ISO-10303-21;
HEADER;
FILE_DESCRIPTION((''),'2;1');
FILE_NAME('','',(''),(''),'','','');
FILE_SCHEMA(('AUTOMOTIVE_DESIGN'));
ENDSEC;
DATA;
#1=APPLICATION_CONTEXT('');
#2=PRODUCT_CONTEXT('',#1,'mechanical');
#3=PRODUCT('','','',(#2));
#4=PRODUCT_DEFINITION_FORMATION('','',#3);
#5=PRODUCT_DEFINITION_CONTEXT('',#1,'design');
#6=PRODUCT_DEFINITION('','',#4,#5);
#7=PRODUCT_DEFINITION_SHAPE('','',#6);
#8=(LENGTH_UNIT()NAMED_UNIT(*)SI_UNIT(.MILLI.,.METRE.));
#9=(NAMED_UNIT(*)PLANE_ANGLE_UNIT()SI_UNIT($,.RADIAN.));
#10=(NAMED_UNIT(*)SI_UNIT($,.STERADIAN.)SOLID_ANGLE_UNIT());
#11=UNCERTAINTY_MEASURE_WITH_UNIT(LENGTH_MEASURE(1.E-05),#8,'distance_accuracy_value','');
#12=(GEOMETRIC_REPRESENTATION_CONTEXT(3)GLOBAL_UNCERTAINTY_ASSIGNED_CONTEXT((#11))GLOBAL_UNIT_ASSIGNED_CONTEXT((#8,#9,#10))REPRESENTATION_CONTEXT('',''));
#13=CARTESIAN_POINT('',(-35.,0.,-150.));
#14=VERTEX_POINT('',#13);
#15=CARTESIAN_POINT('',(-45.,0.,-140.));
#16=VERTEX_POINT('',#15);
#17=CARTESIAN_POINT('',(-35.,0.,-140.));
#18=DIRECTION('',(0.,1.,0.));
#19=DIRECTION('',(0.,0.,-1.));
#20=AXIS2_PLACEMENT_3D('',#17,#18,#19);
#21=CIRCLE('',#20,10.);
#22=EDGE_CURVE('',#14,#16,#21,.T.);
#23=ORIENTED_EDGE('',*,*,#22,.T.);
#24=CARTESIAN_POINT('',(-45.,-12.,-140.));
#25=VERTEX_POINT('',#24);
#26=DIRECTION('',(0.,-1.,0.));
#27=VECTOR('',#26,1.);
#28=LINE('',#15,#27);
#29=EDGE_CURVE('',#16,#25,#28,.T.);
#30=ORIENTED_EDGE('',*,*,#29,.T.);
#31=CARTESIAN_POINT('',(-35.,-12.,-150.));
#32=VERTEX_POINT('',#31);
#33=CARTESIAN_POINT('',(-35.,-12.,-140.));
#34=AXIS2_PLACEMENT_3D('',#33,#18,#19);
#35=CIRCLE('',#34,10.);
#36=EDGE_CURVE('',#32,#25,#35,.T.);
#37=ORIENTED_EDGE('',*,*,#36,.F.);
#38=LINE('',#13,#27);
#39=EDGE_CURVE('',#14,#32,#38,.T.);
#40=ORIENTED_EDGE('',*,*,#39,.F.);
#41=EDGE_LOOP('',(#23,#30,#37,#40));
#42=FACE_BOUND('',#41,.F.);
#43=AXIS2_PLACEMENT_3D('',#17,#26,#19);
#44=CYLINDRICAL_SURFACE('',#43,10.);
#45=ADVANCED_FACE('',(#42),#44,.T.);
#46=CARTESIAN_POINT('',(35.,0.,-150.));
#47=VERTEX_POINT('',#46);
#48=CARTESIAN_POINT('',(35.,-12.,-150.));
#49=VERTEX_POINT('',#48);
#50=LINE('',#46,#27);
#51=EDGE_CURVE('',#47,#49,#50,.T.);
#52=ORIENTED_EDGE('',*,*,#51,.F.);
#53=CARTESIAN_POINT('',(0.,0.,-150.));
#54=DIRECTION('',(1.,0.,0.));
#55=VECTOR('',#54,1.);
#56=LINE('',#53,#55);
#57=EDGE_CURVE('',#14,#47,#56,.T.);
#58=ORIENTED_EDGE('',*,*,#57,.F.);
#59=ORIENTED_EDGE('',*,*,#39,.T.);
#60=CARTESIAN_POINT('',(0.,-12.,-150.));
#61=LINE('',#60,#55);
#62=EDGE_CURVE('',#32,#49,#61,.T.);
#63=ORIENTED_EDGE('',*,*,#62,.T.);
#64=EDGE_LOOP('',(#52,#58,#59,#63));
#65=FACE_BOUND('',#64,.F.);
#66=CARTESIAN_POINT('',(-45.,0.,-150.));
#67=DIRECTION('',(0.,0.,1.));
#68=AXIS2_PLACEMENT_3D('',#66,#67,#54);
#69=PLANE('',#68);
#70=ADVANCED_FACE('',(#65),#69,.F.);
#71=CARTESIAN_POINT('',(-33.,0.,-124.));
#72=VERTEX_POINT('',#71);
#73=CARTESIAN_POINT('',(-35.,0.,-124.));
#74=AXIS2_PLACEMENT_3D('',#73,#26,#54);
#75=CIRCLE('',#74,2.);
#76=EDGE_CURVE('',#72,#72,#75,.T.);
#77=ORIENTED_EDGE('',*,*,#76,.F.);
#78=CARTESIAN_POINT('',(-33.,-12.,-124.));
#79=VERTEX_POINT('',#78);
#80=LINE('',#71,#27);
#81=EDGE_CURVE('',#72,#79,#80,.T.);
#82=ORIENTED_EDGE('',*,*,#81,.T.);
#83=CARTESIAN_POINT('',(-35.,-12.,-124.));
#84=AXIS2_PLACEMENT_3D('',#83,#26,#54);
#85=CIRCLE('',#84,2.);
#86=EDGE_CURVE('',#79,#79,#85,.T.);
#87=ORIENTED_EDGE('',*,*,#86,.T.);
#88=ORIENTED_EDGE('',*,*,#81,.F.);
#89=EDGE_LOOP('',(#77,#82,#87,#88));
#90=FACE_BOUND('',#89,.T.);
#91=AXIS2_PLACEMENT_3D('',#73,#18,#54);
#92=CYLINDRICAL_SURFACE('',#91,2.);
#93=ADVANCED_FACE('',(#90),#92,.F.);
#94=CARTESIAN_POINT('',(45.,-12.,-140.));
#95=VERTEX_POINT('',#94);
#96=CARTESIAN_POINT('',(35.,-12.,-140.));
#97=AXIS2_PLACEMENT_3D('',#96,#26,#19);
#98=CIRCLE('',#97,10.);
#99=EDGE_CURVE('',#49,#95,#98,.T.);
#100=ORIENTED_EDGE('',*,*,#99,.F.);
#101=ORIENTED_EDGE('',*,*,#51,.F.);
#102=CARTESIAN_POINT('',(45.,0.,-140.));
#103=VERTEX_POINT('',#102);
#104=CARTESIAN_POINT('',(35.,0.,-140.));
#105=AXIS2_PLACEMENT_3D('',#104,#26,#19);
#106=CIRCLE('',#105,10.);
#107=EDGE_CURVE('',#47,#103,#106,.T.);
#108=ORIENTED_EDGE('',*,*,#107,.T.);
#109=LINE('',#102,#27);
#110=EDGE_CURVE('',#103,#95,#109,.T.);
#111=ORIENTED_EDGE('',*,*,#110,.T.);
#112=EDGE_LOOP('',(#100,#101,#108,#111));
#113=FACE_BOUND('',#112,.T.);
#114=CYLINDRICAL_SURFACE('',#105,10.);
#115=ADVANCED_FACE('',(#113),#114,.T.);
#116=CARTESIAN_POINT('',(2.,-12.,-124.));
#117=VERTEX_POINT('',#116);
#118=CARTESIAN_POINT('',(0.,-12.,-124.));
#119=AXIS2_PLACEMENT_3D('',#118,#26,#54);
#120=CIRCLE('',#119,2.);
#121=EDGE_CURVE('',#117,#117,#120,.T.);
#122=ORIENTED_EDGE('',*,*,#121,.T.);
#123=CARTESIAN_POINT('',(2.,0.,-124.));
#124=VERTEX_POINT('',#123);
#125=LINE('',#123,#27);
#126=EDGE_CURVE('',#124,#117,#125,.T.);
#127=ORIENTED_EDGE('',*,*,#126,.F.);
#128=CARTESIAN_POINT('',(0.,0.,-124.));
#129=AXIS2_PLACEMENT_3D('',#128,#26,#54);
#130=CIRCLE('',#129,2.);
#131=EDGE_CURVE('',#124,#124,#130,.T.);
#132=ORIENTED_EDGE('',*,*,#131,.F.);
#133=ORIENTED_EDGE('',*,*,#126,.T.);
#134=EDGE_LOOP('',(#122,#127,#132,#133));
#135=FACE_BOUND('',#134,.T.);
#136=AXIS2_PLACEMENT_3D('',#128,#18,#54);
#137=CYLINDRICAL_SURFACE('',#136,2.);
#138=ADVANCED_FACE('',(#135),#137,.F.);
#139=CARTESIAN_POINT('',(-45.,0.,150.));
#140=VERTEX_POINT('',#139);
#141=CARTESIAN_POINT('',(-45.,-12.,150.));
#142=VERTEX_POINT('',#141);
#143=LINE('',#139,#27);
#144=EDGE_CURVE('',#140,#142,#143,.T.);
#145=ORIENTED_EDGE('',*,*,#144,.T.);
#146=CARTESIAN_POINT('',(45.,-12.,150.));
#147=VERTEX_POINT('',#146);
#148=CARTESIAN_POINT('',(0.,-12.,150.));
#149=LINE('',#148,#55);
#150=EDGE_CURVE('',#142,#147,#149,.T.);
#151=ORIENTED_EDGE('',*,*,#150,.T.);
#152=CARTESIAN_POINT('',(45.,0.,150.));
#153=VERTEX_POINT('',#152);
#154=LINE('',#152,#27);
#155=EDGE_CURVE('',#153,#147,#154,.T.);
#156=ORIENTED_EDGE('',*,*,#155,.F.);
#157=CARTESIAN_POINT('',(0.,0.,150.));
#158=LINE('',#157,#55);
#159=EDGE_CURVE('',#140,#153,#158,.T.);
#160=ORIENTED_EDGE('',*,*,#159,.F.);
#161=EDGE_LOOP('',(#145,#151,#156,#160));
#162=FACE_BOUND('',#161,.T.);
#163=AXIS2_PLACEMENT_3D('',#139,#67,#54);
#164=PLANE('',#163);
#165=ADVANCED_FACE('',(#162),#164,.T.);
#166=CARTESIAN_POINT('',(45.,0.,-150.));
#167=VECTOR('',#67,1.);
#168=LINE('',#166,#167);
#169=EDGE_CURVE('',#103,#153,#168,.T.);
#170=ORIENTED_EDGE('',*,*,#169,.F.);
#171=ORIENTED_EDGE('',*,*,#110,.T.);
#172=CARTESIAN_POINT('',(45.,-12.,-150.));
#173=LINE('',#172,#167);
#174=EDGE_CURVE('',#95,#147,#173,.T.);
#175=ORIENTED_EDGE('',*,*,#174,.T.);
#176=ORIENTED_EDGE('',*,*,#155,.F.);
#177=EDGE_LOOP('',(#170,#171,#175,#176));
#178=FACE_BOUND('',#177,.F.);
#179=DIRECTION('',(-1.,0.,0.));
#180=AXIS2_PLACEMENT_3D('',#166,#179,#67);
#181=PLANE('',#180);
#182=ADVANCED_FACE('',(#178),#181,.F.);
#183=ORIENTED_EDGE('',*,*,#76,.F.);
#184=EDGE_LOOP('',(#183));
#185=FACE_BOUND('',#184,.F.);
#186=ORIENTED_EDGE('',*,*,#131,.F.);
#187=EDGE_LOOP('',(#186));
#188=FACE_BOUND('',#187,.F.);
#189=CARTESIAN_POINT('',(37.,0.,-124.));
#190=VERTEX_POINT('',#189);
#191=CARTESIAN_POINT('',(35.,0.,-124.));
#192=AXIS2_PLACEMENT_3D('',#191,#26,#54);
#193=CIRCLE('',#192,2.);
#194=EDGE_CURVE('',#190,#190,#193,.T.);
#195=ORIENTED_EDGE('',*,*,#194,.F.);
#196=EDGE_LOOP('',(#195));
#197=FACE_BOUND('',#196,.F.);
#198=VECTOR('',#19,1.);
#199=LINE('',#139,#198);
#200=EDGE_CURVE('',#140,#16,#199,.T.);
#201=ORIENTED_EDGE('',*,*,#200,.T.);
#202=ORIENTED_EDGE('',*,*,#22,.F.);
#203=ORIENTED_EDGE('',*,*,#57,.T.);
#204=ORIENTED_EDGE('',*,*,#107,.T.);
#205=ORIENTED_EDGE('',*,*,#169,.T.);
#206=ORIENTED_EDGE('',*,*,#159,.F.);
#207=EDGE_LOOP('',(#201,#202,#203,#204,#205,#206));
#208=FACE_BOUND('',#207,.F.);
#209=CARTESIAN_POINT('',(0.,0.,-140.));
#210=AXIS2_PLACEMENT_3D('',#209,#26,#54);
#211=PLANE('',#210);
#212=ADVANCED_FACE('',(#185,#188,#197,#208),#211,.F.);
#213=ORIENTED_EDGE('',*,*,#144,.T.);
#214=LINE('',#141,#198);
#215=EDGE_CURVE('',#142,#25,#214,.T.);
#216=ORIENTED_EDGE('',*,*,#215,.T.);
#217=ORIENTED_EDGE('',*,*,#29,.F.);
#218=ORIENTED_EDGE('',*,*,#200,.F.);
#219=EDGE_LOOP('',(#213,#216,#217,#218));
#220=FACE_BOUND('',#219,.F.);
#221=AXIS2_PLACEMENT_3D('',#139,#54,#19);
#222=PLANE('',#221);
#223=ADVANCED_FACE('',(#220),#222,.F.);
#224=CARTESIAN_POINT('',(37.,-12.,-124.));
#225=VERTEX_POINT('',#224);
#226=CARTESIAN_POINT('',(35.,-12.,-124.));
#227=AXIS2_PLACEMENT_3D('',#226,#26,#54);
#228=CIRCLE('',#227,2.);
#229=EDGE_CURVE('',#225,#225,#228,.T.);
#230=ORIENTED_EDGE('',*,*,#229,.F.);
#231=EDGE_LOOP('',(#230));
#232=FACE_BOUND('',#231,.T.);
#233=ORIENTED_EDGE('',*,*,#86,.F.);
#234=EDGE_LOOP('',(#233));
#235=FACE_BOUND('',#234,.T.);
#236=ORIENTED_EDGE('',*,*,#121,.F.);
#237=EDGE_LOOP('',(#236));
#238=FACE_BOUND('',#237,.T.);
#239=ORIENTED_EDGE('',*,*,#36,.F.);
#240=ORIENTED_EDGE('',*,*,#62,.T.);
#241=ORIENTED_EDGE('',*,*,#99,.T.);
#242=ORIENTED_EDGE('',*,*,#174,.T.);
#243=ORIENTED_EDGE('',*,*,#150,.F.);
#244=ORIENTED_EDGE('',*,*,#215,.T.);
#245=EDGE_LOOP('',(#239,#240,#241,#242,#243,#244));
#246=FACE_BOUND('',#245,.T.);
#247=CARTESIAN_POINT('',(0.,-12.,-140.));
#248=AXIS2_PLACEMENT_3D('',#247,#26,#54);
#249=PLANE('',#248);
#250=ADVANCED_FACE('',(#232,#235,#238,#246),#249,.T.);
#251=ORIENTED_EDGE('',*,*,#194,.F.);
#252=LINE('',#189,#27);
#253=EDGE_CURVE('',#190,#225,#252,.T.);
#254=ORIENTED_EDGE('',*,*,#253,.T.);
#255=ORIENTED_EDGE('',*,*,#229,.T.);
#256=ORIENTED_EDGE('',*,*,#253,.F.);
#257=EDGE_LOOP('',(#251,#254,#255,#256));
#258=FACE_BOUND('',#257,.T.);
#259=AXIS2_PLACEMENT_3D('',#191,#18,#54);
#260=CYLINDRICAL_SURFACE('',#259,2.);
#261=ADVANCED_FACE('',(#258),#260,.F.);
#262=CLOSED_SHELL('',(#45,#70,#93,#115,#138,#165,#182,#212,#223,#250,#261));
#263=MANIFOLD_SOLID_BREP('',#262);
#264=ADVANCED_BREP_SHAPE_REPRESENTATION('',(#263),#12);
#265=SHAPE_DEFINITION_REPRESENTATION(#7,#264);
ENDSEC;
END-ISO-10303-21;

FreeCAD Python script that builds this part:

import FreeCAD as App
import Part
import Sketcher
Q = App.Units.Quantity


def edges_at(feature, points):
    """Names of the edges that pass closest to the given points."""
    edges = feature.Shape.Edges
    near = lambda p: min(range(len(edges)), key=lambda i: edges[i].distToShape(Part.Vertex(*p))[0])
    return sorted({f"Edge{near(p) + 1}" for p in points})

doc = App.newDocument("Part")
body = doc.addObject("PartDesign::Body", "Body")

# Sketch on XZ plane
sketch1 = body.newObject("Sketcher::SketchObject", "Sketch")
sketch1.AttachmentSupport = (doc.getObject("XZ_Plane"), [""])
sketch1.MapMode = "FlatFace"
sketch1.addGeometry([
    Part.LineSegment(App.Vector(-45, -150, 0), App.Vector(45, -150, 0)),  # 0
    Part.LineSegment(App.Vector(45, -150, 0), App.Vector(45, 150, 0)),  # 1
    Part.LineSegment(App.Vector(45, 150, 0), App.Vector(-45, 150, 0)),  # 2
    Part.LineSegment(App.Vector(-45, 150, 0), App.Vector(-45, -150, 0)),  # 3
    Part.Circle(App.Vector(-35, -124, 0), App.Vector(0, 0, 1), 2),  # 4
    Part.Circle(App.Vector(0, -124, 0), App.Vector(0, 0, 1), 2),  # 5
    Part.Circle(App.Vector(35, -124, 0), App.Vector(0, 0, 1), 2),  # 6
], False)
sketch1.addConstraint([
    Sketcher.Constraint("Coincident", 0, 2, 1, 1),
    Sketcher.Constraint("Coincident", 1, 2, 2, 1),
    Sketcher.Constraint("Coincident", 2, 2, 3, 1),
    Sketcher.Constraint("Coincident", 3, 2, 0, 1),
    Sketcher.Constraint("Horizontal", 0),
    Sketcher.Constraint("Vertical", 1),
    Sketcher.Constraint("Horizontal", 2),
    Sketcher.Constraint("Vertical", 3),
    Sketcher.Constraint("Equal", 4, 5),
    Sketcher.Constraint("Equal", 5, 6),
    Sketcher.Constraint("Symmetric", 0, 2, 2, 2, -1, 1),
    Sketcher.Constraint("Symmetric", 4, 3, 6, 3, -2),
    Sketcher.Constraint("PointOnObject", 5, 3, -2),
    Sketcher.Constraint("Horizontal", 4, 3, 5, 3),
    Sketcher.Constraint("Diameter", 4, Q("4 mm")),
    Sketcher.Constraint("DistanceX", 0, 1, 0, 2, Q("90 mm")),
    Sketcher.Constraint("DistanceY", 1, 1, 1, 2, Q("300 mm")),
    Sketcher.Constraint("DistanceX", 4, 3, -1, 1, Q("35 mm")),
    Sketcher.Constraint("DistanceY", 4, 3, -1, 1, Q("124 mm")),
])
pad1 = body.newObject("PartDesign::Pad", "Pad")
pad1.Profile = sketch1
pad1.Length = 12
doc.recompute()

fillet = body.newObject("PartDesign::Fillet", "Fillet")
fillet.Base = (pad1, edges_at(pad1, [(45, -6, -150), (-45, -6, -150)]))
fillet.Radius = 10

doc.recompute()
